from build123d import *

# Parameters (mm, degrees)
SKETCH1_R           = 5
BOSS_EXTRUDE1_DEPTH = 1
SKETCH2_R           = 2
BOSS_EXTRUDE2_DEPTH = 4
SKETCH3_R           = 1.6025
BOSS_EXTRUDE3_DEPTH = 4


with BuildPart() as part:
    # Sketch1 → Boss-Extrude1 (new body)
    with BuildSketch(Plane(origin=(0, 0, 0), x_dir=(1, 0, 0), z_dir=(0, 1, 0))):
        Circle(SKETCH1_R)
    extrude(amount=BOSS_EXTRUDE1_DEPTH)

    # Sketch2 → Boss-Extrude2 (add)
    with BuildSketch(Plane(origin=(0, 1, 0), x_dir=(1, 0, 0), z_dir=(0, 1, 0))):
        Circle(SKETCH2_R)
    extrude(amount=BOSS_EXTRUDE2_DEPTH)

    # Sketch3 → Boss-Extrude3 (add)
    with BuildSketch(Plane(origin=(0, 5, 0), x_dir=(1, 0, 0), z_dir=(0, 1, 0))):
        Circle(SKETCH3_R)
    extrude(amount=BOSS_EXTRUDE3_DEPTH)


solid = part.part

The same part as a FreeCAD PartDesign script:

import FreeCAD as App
import Part
import Sketcher
from FreeCAD import Vector

doc = App.newDocument("Part")
body = doc.addObject("PartDesign::Body", "Body")

sketch1 = body.newObject("Sketcher::SketchObject", "Sketch")
sketch1.AttachmentSupport = (doc.getObject("XZ_Plane"), [""])
sketch1.MapMode = "FlatFace"
sketch1.addGeometry(Part.Circle(Vector(0, 0, 0), Vector(0, 0, 1), 5), False)
sketch1.addConstraint([
    Sketcher.Constraint("Coincident", 0, 3, -1, 1),
    Sketcher.Constraint("Diameter", 0, 10.0),
])
pad1 = body.newObject("PartDesign::Pad", "Pad")
pad1.Profile = sketch1
pad1.Length = 1
pad1.Reversed = True

sketch2 = body.newObject("Sketcher::SketchObject", "Sketch001")
sketch2.AttachmentSupport = (doc.getObject("XZ_Plane"), [""])
sketch2.MapMode = "FlatFace"
sketch2.AttachmentOffset = App.Placement(Vector(0, 0, -1), App.Rotation())
sketch2.addGeometry(Part.Circle(Vector(0, 0, 0), Vector(0, 0, 1), 2), False)
sketch2.addConstraint([
    Sketcher.Constraint("Coincident", 0, 3, -1, 1),
    Sketcher.Constraint("Diameter", 0, 4.0),
])
pad2 = body.newObject("PartDesign::Pad", "Pad001")
pad2.Profile = sketch2
pad2.Length = 4
pad2.Reversed = True

sketch3 = body.newObject("Sketcher::SketchObject", "Sketch002")
sketch3.AttachmentSupport = (doc.getObject("XZ_Plane"), [""])
sketch3.MapMode = "FlatFace"
sketch3.AttachmentOffset = App.Placement(Vector(0, 0, -5), App.Rotation())
sketch3.addGeometry(Part.Circle(Vector(0, 0, 0), Vector(0, 0, 1), 1.6025), False)
sketch3.addConstraint([
    Sketcher.Constraint("Coincident", 0, 3, -1, 1),
    Sketcher.Constraint("Diameter", 0, 3.205),
])
pad3 = body.newObject("PartDesign::Pad", "Pad002")
pad3.Profile = sketch3
pad3.Length = 4
pad3.Reversed = True

doc.recompute()
